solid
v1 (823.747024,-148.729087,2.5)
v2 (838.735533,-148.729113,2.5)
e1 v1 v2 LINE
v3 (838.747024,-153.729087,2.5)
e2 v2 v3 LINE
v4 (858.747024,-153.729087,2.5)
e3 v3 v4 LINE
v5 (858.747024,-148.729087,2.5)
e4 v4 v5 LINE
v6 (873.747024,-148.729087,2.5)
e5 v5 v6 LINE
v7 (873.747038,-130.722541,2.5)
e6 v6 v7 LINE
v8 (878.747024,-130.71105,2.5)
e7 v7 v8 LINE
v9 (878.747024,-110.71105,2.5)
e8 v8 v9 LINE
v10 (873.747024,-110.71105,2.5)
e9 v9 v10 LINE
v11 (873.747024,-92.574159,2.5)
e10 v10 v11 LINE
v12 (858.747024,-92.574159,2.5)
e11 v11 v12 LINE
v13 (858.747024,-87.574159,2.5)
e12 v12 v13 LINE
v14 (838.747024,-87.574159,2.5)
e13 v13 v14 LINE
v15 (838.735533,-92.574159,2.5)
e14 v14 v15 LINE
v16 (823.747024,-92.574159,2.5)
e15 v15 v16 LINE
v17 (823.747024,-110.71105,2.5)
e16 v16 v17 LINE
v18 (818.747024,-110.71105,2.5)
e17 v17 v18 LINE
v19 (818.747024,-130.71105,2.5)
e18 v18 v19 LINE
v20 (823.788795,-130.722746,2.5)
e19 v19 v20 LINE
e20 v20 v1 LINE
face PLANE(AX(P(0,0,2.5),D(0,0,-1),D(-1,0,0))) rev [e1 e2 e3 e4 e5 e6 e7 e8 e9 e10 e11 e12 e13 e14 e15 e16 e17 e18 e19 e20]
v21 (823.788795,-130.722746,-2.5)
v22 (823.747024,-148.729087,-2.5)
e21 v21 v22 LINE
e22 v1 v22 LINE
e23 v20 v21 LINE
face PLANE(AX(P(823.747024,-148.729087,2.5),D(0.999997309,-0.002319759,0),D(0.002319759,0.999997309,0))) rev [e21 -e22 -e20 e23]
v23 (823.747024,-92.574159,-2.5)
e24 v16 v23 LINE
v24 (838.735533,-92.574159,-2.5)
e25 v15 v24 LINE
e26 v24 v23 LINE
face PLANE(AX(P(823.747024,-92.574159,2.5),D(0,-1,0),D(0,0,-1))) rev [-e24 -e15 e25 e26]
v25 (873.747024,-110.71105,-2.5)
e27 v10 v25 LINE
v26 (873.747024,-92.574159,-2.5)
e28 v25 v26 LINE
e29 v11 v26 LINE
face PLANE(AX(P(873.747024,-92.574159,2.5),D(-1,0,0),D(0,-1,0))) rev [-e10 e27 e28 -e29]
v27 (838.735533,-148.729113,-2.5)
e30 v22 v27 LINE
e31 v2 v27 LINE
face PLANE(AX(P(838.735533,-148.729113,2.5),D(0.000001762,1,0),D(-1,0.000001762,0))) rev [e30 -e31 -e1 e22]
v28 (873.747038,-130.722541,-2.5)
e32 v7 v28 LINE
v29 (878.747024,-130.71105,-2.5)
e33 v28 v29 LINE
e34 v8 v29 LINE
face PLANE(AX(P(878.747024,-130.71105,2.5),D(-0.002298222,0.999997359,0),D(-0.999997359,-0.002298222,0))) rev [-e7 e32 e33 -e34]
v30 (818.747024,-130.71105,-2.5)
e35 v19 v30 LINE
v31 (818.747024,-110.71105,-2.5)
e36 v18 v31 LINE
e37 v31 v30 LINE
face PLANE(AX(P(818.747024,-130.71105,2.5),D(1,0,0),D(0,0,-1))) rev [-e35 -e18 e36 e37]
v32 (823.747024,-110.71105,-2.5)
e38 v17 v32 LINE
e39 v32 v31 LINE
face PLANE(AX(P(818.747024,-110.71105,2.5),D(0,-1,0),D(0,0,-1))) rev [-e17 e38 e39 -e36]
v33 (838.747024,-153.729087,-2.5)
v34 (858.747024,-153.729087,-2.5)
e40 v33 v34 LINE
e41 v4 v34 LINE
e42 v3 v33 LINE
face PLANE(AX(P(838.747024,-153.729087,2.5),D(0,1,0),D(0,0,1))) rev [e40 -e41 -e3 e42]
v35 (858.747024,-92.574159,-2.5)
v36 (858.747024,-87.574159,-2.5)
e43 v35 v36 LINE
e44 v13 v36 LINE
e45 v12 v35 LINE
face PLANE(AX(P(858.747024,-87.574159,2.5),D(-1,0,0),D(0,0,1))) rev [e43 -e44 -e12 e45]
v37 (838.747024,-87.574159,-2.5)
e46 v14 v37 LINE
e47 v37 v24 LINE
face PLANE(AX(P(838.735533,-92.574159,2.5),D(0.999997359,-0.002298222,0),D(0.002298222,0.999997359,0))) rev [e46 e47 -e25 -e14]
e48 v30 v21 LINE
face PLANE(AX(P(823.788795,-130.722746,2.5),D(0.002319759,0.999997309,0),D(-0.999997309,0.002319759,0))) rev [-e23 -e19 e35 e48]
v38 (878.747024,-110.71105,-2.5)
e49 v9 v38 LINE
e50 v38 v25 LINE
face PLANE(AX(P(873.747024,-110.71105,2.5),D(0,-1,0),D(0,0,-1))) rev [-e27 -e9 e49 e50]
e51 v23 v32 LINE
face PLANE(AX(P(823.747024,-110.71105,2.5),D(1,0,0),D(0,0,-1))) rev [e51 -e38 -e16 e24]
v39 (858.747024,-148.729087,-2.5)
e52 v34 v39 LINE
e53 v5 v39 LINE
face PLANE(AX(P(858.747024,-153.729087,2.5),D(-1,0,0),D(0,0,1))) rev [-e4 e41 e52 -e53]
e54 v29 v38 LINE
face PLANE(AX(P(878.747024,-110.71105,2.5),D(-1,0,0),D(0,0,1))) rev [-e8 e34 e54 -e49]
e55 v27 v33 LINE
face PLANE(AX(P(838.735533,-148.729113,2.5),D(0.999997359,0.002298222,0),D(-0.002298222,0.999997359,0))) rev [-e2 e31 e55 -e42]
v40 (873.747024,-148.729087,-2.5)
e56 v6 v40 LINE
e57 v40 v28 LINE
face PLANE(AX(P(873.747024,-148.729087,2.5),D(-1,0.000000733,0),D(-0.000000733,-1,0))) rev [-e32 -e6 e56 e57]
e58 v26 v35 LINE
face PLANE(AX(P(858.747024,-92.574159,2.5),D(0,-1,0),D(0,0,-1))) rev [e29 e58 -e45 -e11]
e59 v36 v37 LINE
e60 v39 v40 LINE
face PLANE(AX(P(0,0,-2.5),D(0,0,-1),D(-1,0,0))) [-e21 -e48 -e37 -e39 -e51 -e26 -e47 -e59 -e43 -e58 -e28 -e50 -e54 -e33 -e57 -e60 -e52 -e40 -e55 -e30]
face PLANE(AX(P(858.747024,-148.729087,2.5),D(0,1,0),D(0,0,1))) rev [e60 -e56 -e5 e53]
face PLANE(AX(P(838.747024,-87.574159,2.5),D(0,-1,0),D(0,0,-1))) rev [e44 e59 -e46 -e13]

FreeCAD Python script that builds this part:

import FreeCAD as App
import Part
import Sketcher
Q = App.Units.Quantity

doc = App.newDocument("Part")
params = doc.addObject("Spreadsheet::Sheet", "Params")
for row, (alias, value) in enumerate([
    ("sketch1_width", "5 mm"),
    ("sketch1_width2", "20 mm"),
    ("sketch1_width3", "15 mm"),
    ("sketch1_length", "5 mm"),
    ("pad1_length", "5 mm"),
], start=1):
    params.set(f"A{row}", alias)
    params.set(f"B{row}", "=" + value)
    params.setAlias(f"B{row}", alias)

body = doc.addObject("PartDesign::Body", "Body")

# Sketch on XY plane
sketch1 = body.newObject("Sketcher::SketchObject", "Sketch")
sketch1.AttachmentSupport = (doc.getObject("XY_Plane"), [""])
sketch1.MapMode = "FlatFace"
sketch1.addGeometry([
    Part.LineSegment(App.Vector(838.747024, -87.574159, 0), App.Vector(838.735533, -92.574159, 0)),  # 0
    Part.LineSegment(App.Vector(838.735533, -92.574159, 0), App.Vector(823.747024, -92.574159, 0)),  # 1
    Part.LineSegment(App.Vector(823.747024, -92.574159, 0), App.Vector(823.747024, -110.71105, 0)),  # 2
    Part.LineSegment(App.Vector(823.747024, -110.71105, 0), App.Vector(818.747024, -110.71105, 0)),  # 3
    Part.LineSegment(App.Vector(818.747024, -110.71105, 0), App.Vector(818.747024, -130.71105, 0)),  # 4
    Part.LineSegment(App.Vector(818.747024, -130.71105, 0), App.Vector(823.788795, -130.722746, 0)),  # 5
    Part.LineSegment(App.Vector(823.788795, -130.722746, 0), App.Vector(823.747024, -148.729087, 0)),  # 6
    Part.LineSegment(App.Vector(823.747024, -148.729087, 0), App.Vector(838.735533, -148.729113, 0)),  # 7
    Part.LineSegment(App.Vector(838.735533, -148.729113, 0), App.Vector(838.747024, -153.729087, 0)),  # 8
    Part.LineSegment(App.Vector(838.747024, -153.729087, 0), App.Vector(858.747024, -153.729087, 0)),  # 9
    Part.LineSegment(App.Vector(858.747024, -153.729087, 0), App.Vector(858.747024, -148.729087, 0)),  # 10
    Part.LineSegment(App.Vector(858.747024, -148.729087, 0), App.Vector(873.747024, -148.729087, 0)),  # 11
    Part.LineSegment(App.Vector(873.747024, -148.729087, 0), App.Vector(873.747038, -130.722541, 0)),  # 12
    Part.LineSegment(App.Vector(873.747038, -130.722541, 0), App.Vector(878.747024, -130.71105, 0)),  # 13
    Part.LineSegment(App.Vector(878.747024, -130.71105, 0), App.Vector(878.747024, -110.71105, 0)),  # 14
    Part.LineSegment(App.Vector(878.747024, -110.71105, 0), App.Vector(873.747024, -110.71105, 0)),  # 15
    Part.LineSegment(App.Vector(873.747024, -110.71105, 0), App.Vector(873.747024, -92.574159, 0)),  # 16
    Part.LineSegment(App.Vector(873.747024, -92.574159, 0), App.Vector(858.747024, -92.574159, 0)),  # 17
    Part.LineSegment(App.Vector(858.747024, -92.574159, 0), App.Vector(858.747024, -87.574159, 0)),  # 18
    Part.LineSegment(App.Vector(858.747024, -87.574159, 0), App.Vector(838.747024, -87.574159, 0)),  # 19
], False)
sketch1.addConstraint([
    Sketcher.Constraint("Coincident", 0, 2, 1, 1),
    Sketcher.Constraint("Coincident", 1, 2, 2, 1),
    Sketcher.Constraint("Coincident", 2, 2, 3, 1),
    Sketcher.Constraint("Coincident", 3, 2, 4, 1),
    Sketcher.Constraint("Coincident", 4, 2, 5, 1),
    Sketcher.Constraint("Coincident", 5, 2, 6, 1),
    Sketcher.Constraint("Coincident", 6, 2, 7, 1),
    Sketcher.Constraint("Coincident", 7, 2, 8, 1),
    Sketcher.Constraint("Coincident", 8, 2, 9, 1),
    Sketcher.Constraint("Coincident", 9, 2, 10, 1),
    Sketcher.Constraint("Coincident", 10, 2, 11, 1),
    Sketcher.Constraint("Coincident", 11, 2, 12, 1),
    Sketcher.Constraint("Coincident", 12, 2, 13, 1),
    Sketcher.Constraint("Coincident", 13, 2, 14, 1),
    Sketcher.Constraint("Coincident", 14, 2, 15, 1),
    Sketcher.Constraint("Coincident", 15, 2, 16, 1),
    Sketcher.Constraint("Coincident", 16, 2, 17, 1),
    Sketcher.Constraint("Coincident", 17, 2, 18, 1),
    Sketcher.Constraint("Coincident", 18, 2, 19, 1),
    Sketcher.Constraint("Coincident", 19, 2, 0, 1),
    Sketcher.Constraint("Horizontal", 1),
    Sketcher.Constraint("Vertical", 2),
    Sketcher.Constraint("Horizontal", 3),
    Sketcher.Constraint("Vertical", 4),
    Sketcher.Constraint("Horizontal", 9),
    Sketcher.Constraint("Vertical", 10),
    Sketcher.Constraint("Horizontal", 11),
    Sketcher.Constraint("Vertical", 14),
    Sketcher.Constraint("Horizontal", 15),
    Sketcher.Constraint("Vertical", 16),
    Sketcher.Constraint("Horizontal", 17),
    Sketcher.Constraint("Vertical", 18),
    Sketcher.Constraint("Horizontal", 19),
    Sketcher.Constraint("Perpendicular", 5, 6),
    Sketcher.Constraint("Perpendicular", 7, 12),
    Sketcher.Constraint("Perpendicular", 8, 13),
    Sketcher.Constraint("Horizontal", 6, 2, 10, 2),
    Sketcher.Constraint("Horizontal", 4, 2, 13, 2),
    Sketcher.Constraint("Horizontal", 3, 2, 14, 2),
    Sketcher.Constraint("Horizontal", 1, 2, 16, 2),
    Sketcher.Constraint("Vertical", 2, 2, 6, 2),
    Sketcher.Constraint("Vertical", 0, 2, 7, 2),
    Sketcher.Constraint("Vertical", 11, 2, 15, 2),
    Sketcher.Constraint("Vertical", 10, 2, 17, 2),
    Sketcher.Constraint("Vertical", 8, 2, 19, 2),
    Sketcher.Constraint("Equal", 3, 15),
    Sketcher.Constraint("Equal", 19, 4),
    Sketcher.Constraint("Equal", 15, 10),
    Sketcher.Constraint("Equal", 10, 18),
    Sketcher.Constraint("DistanceX", 3, 2, 3, 1, Q("5 mm")),
    Sketcher.Constraint("DistanceX", 9, 1, 9, 2, Q("20 mm")),
    Sketcher.Constraint("DistanceX", 11, 1, 11, 2, Q("15 mm")),
    Sketcher.Constraint("Distance", 13, Q("5 mm")),
    Sketcher.Constraint("DistanceX", 6, 2, 8, 2, Q("15 mm")),
    Sketcher.Constraint("DistanceX", 1, 2, 1, 1, Q("14.988509 mm")),
    Sketcher.Constraint("DistanceY", 2, 2, 2, 1, Q("18.136891 mm")),
    Sketcher.Constraint("Distance", 6, Q("18.006389 mm")),
    Sketcher.Constraint("DistanceY", 0, 2, -1, 1, Q("92.574159 mm")),
    Sketcher.Constraint("DistanceX", 4, 2, 5, 2, Q("5.04177 mm")),
    Sketcher.Constraint("DistanceX", -1, 1, 0, 2, Q("838.735533 mm")),
])
sketch1.setExpression("Constraints[49]", "Params.sketch1_width")
sketch1.setExpression("Constraints[50]", "Params.sketch1_width2")
sketch1.setExpression("Constraints[51]", "Params.sketch1_width3")
sketch1.setExpression("Constraints[52]", "Params.sketch1_length")
pad1 = body.newObject("PartDesign::Pad", "Pad")
pad1.Profile = sketch1
pad1.setExpression("Length", "Params.pad1_length")
pad1.Midplane = True

doc.recompute()
